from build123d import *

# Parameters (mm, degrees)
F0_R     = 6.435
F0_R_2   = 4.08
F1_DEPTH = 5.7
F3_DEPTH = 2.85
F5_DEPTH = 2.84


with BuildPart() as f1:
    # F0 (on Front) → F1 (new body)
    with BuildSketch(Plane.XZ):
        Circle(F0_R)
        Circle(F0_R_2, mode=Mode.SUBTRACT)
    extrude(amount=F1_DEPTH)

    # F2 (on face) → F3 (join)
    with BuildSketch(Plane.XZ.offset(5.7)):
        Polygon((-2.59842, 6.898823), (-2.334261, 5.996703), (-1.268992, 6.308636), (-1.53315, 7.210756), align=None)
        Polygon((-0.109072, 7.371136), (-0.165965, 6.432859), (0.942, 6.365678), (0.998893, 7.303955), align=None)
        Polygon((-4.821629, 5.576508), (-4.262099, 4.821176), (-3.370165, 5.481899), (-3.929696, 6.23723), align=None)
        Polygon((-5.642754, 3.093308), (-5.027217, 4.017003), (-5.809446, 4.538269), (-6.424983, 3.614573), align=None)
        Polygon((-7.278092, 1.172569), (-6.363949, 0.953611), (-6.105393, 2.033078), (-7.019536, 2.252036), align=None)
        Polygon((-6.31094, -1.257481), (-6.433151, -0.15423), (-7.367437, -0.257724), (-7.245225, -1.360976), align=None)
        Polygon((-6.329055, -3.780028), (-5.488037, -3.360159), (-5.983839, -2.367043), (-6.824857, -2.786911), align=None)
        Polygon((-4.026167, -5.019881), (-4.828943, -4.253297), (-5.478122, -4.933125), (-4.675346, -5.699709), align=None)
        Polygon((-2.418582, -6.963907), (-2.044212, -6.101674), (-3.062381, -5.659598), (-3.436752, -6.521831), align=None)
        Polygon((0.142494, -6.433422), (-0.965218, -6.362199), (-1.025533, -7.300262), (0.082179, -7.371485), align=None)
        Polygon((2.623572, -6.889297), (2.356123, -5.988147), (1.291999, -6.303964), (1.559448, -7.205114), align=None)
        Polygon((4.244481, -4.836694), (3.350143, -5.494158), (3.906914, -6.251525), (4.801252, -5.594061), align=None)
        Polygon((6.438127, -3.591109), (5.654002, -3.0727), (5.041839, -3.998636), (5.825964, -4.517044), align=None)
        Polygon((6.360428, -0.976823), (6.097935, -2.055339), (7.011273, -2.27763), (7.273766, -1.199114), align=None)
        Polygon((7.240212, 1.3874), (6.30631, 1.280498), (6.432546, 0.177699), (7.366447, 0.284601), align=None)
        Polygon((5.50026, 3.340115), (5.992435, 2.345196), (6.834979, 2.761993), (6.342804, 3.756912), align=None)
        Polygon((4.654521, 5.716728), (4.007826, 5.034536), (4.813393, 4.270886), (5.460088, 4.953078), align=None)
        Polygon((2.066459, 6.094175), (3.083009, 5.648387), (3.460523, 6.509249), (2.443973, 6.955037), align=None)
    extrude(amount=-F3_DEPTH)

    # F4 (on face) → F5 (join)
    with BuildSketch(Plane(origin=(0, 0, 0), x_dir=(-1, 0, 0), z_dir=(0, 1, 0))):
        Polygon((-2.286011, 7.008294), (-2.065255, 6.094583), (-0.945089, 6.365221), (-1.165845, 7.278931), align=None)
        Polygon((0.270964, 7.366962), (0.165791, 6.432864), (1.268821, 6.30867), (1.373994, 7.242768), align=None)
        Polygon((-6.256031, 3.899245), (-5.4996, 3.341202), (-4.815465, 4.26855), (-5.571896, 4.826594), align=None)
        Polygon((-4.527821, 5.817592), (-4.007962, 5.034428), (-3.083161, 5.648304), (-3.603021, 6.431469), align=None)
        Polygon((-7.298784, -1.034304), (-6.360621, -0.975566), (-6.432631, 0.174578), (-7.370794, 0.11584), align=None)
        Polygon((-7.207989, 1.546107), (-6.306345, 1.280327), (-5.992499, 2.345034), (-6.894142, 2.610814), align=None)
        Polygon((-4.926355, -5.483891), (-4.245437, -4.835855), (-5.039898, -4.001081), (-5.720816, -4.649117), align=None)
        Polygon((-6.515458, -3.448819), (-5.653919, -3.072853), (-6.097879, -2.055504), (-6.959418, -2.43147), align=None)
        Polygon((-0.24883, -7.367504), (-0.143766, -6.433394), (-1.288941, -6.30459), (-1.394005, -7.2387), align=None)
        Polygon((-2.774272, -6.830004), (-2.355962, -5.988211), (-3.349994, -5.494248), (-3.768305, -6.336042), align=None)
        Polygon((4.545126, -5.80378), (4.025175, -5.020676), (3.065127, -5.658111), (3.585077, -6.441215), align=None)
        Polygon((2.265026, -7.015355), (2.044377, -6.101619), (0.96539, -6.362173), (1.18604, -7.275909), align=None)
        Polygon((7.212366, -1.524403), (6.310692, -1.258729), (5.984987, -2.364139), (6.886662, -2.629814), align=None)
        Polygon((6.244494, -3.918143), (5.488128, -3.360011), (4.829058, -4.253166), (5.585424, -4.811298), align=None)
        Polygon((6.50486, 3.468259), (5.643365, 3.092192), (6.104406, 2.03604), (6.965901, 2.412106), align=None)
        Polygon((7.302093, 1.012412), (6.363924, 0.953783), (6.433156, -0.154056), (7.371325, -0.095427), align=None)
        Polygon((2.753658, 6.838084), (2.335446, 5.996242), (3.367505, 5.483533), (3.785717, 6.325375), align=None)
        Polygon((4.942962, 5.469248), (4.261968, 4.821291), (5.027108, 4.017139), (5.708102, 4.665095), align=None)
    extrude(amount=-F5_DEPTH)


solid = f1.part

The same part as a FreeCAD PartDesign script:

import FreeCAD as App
import Part
import Sketcher

V = App.Vector

doc = App.newDocument("Part")
params = doc.addObject("Spreadsheet::Sheet", "Params")
for row, (alias, value) in enumerate([
    ("sketch1_diameter", "12.87 mm"),
    ("sketch1_diameter2", "8.16 mm"),
    ("pad1_length", "5.7 mm"),
    ("sketch2_length", "0.94 mm"),
    ("sketch2_length2", "1.11 mm"),
    ("pad2_length", "2.85 mm"),
    ("sketch3_length", "0.940001 mm"),
    ("sketch3_length2", "0.94 mm"),
    ("sketch3_length3", "0.94 mm"),
    ("sketch3_length4", "1.11 mm"),
    ("sketch3_length5", "0.94 mm"),
    ("pad3_length", "2.84 mm"),
], start=1):
    params.set(f"A{row}", alias)
    params.set(f"B{row}", "=" + value)
    params.setAlias(f"B{row}", alias)

body = doc.addObject("PartDesign::Body", "Body")

sketch1 = body.newObject("Sketcher::SketchObject", "Sketch")
sketch1.AttachmentSupport = (doc.getObject("XZ_Plane"), [""])
sketch1.MapMode = "FlatFace"
sketch1.addGeometry([
    Part.Circle(V(0, 0, 0), V(0, 0, 1), 6.4),
    Part.Circle(V(0, 0, 0), V(0, 0, 1), 4.1),
], False)
sketch1.addConstraint([
    Sketcher.Constraint("Coincident", 0, 3, -1, 1),
    Sketcher.Constraint("Coincident", 1, 3, -1, 1),
    Sketcher.Constraint("Diameter", 0, 12.87),
    Sketcher.Constraint("Diameter", 1, 8.16),
])
sketch1.setExpression("Constraints[2]", "Params.sketch1_diameter")
sketch1.setExpression("Constraints[3]", "Params.sketch1_diameter2")
pad1 = body.newObject("PartDesign::Pad", "Pad")
pad1.Profile = sketch1
pad1.setExpression("Length", "Params.pad1_length")

sketch2 = body.newObject("Sketcher::SketchObject", "Sketch001")
sketch2.AttachmentSupport = (doc.getObject("XZ_Plane"), [""])
sketch2.MapMode = "FlatFace"
sketch2.AttachmentOffset = App.Placement(V(0, 0, 5.7), App.Rotation())
sketch2.addGeometry([
    Part.LineSegment(V(-2.6, 6.9, 0), V(-2.3, 6, 0)),
    Part.LineSegment(V(-2.3, 6, 0), V(-1.3, 6.3, 0)),
    Part.LineSegment(V(-1.3, 6.3, 0), V(-1.5, 7.2, 0)),
    Part.LineSegment(V(-1.5, 7.2, 0), V(-2.6, 6.9, 0)),
    Part.LineSegment(V(-0.1, 7.4, 0), V(-0.2, 6.4, 0)),
    Part.LineSegment(V(-0.2, 6.4, 0), V(0.9, 6.4, 0)),
    Part.LineSegment(V(0.9, 6.4, 0), V(1, 7.3, 0)),
    Part.LineSegment(V(1, 7.3, 0), V(-0.1, 7.4, 0)),
    Part.LineSegment(V(-4.8, 5.6, 0), V(-4.3, 4.8, 0)),
    Part.LineSegment(V(-4.3, 4.8, 0), V(-3.4, 5.5, 0)),
    Part.LineSegment(V(-3.4, 5.5, 0), V(-3.9, 6.2, 0)),
    Part.LineSegment(V(-3.9, 6.2, 0), V(-4.8, 5.6, 0)),
    Part.LineSegment(V(-5.6, 3.1, 0), V(-5, 4, 0)),
    Part.LineSegment(V(-5, 4, 0), V(-5.8, 4.5, 0)),
    Part.LineSegment(V(-5.8, 4.5, 0), V(-6.4, 3.6, 0)),
    Part.LineSegment(V(-6.4, 3.6, 0), V(-5.6, 3.1, 0)),
    Part.LineSegment(V(-7.3, 1.2, 0), V(-6.4, 1, 0)),
    Part.LineSegment(V(-6.4, 1, 0), V(-6.1, 2, 0)),
    Part.LineSegment(V(-6.1, 2, 0), V(-7, 2.3, 0)),
    Part.LineSegment(V(-7, 2.3, 0), V(-7.3, 1.2, 0)),
    Part.LineSegment(V(-6.3, -1.3, 0), V(-6.4, -0.2, 0)),
    Part.LineSegment(V(-6.4, -0.2, 0), V(-7.4, -0.3, 0)),
    Part.LineSegment(V(-7.4, -0.3, 0), V(-7.2, -1.4, 0)),
    Part.LineSegment(V(-7.2, -1.4, 0), V(-6.3, -1.3, 0)),
    Part.LineSegment(V(-6.3, -3.8, 0), V(-5.5, -3.4, 0)),
    Part.LineSegment(V(-5.5, -3.4, 0), V(-6, -2.4, 0)),
    Part.LineSegment(V(-6, -2.4, 0), V(-6.8, -2.8, 0)),
    Part.LineSegment(V(-6.8, -2.8, 0), V(-6.3, -3.8, 0)),
    Part.LineSegment(V(-4, -5, 0), V(-4.8, -4.3, 0)),
    Part.LineSegment(V(-4.8, -4.3, 0), V(-5.5, -4.9, 0)),
    Part.LineSegment(V(-5.5, -4.9, 0), V(-4.7, -5.7, 0)),
    Part.LineSegment(V(-4.7, -5.7, 0), V(-4, -5, 0)),
    Part.LineSegment(V(-2.4, -7, 0), V(-2, -6.1, 0)),
    Part.LineSegment(V(-2, -6.1, 0), V(-3.1, -5.7, 0)),
    Part.LineSegment(V(-3.1, -5.7, 0), V(-3.4, -6.5, 0)),
    Part.LineSegment(V(-3.4, -6.5, 0), V(-2.4, -7, 0)),
    Part.LineSegment(V(0.1, -6.4, 0), V(-1, -6.4, 0)),
    Part.LineSegment(V(-1, -6.4, 0), V(-1, -7.3, 0)),
    Part.LineSegment(V(-1, -7.3, 0), V(0.1, -7.4, 0)),
    Part.LineSegment(V(0.1, -7.4, 0), V(0.1, -6.4, 0)),
    Part.LineSegment(V(2.6, -6.9, 0), V(2.4, -6, 0)),
    Part.LineSegment(V(2.4, -6, 0), V(1.3, -6.3, 0)),
    Part.LineSegment(V(1.3, -6.3, 0), V(1.6, -7.2, 0)),
    Part.LineSegment(V(1.6, -7.2, 0), V(2.6, -6.9, 0)),
    Part.LineSegment(V(4.2, -4.8, 0), V(3.4, -5.5, 0)),
    Part.LineSegment(V(3.4, -5.5, 0), V(3.9, -6.3, 0)),
    Part.LineSegment(V(3.9, -6.3, 0), V(4.8, -5.6, 0)),
    Part.LineSegment(V(4.8, -5.6, 0), V(4.2, -4.8, 0)),
    Part.LineSegment(V(6.4, -3.6, 0), V(5.7, -3.1, 0)),
    Part.LineSegment(V(5.7, -3.1, 0), V(5, -4, 0)),
    Part.LineSegment(V(5, -4, 0), V(5.8, -4.5, 0)),
    Part.LineSegment(V(5.8, -4.5, 0), V(6.4, -3.6, 0)),
    Part.LineSegment(V(6.4, -1, 0), V(6.1, -2.1, 0)),
    Part.LineSegment(V(6.1, -2.1, 0), V(7, -2.3, 0)),
    Part.LineSegment(V(7, -2.3, 0), V(7.3, -1.2, 0)),
    Part.LineSegment(V(7.3, -1.2, 0), V(6.4, -1, 0)),
    Part.LineSegment(V(7.2, 1.4, 0), V(6.3, 1.3, 0)),
    Part.LineSegment(V(6.3, 1.3, 0), V(6.4, 0.2, 0)),
    Part.LineSegment(V(6.4, 0.2, 0), V(7.4, 0.3, 0)),
    Part.LineSegment(V(7.4, 0.3, 0), V(7.2, 1.4, 0)),
    Part.LineSegment(V(5.5, 3.3, 0), V(6, 2.3, 0)),
    Part.LineSegment(V(6, 2.3, 0), V(6.8, 2.8, 0)),
    Part.LineSegment(V(6.8, 2.8, 0), V(6.3, 3.8, 0)),
    Part.LineSegment(V(6.3, 3.8, 0), V(5.5, 3.3, 0)),
    Part.LineSegment(V(4.7, 5.7, 0), V(4, 5, 0)),
    Part.LineSegment(V(4, 5, 0), V(4.8, 4.3, 0)),
    Part.LineSegment(V(4.8, 4.3, 0), V(5.5, 5, 0)),
    Part.LineSegment(V(5.5, 5, 0), V(4.7, 5.7, 0)),
    Part.LineSegment(V(2.1, 6.1, 0), V(3.1, 5.6, 0)),
    Part.LineSegment(V(3.1, 5.6, 0), V(3.5, 6.5, 0)),
    Part.LineSegment(V(3.5, 6.5, 0), V(2.4, 7, 0)),
    Part.LineSegment(V(2.4, 7, 0), V(2.1, 6.1, 0)),
], False)
sketch2.addConstraint([
    Sketcher.Constraint("Coincident", 0, 2, 1, 1),
    Sketcher.Constraint("Coincident", 1, 2, 2, 1),
    Sketcher.Constraint("Coincident", 2, 2, 3, 1),
    Sketcher.Constraint("Coincident", 3, 2, 0, 1),
    Sketcher.Constraint("Coincident", 4, 2, 5, 1),
    Sketcher.Constraint("Coincident", 5, 2, 6, 1),
    Sketcher.Constraint("Coincident", 6, 2, 7, 1),
    Sketcher.Constraint("Coincident", 7, 2, 4, 1),
    Sketcher.Constraint("Coincident", 8, 2, 9, 1),
    Sketcher.Constraint("Coincident", 9, 2, 10, 1),
    Sketcher.Constraint("Coincident", 10, 2, 11, 1),
    Sketcher.Constraint("Coincident", 11, 2, 8, 1),
    Sketcher.Constraint("Coincident", 12, 2, 13, 1),
    Sketcher.Constraint("Coincident", 13, 2, 14, 1),
    Sketcher.Constraint("Coincident", 14, 2, 15, 1),
    Sketcher.Constraint("Coincident", 15, 2, 12, 1),
    Sketcher.Constraint("Coincident", 16, 2, 17, 1),
    Sketcher.Constraint("Coincident", 17, 2, 18, 1),
    Sketcher.Constraint("Coincident", 18, 2, 19, 1),
    Sketcher.Constraint("Coincident", 19, 2, 16, 1),
    Sketcher.Constraint("Coincident", 20, 2, 21, 1),
    Sketcher.Constraint("Coincident", 21, 2, 22, 1),
    Sketcher.Constraint("Coincident", 22, 2, 23, 1),
    Sketcher.Constraint("Coincident", 23, 2, 20, 1),
    Sketcher.Constraint("Coincident", 24, 2, 25, 1),
    Sketcher.Constraint("Coincident", 25, 2, 26, 1),
    Sketcher.Constraint("Coincident", 26, 2, 27, 1),
    Sketcher.Constraint("Coincident", 27, 2, 24, 1),
    Sketcher.Constraint("Coincident", 28, 2, 29, 1),
    Sketcher.Constraint("Coincident", 29, 2, 30, 1),
    Sketcher.Constraint("Coincident", 30, 2, 31, 1),
    Sketcher.Constraint("Coincident", 31, 2, 28, 1),
    Sketcher.Constraint("Coincident", 32, 2, 33, 1),
    Sketcher.Constraint("Coincident", 33, 2, 34, 1),
    Sketcher.Constraint("Coincident", 34, 2, 35, 1),
    Sketcher.Constraint("Coincident", 35, 2, 32, 1),
    Sketcher.Constraint("Coincident", 36, 2, 37, 1),
    Sketcher.Constraint("Coincident", 37, 2, 38, 1),
    Sketcher.Constraint("Coincident", 38, 2, 39, 1),
    Sketcher.Constraint("Coincident", 39, 2, 36, 1),
    Sketcher.Constraint("Coincident", 40, 2, 41, 1),
    Sketcher.Constraint("Coincident", 41, 2, 42, 1),
    Sketcher.Constraint("Coincident", 42, 2, 43, 1),
    Sketcher.Constraint("Coincident", 43, 2, 40, 1),
    Sketcher.Constraint("Coincident", 44, 2, 45, 1),
    Sketcher.Constraint("Coincident", 45, 2, 46, 1),
    Sketcher.Constraint("Coincident", 46, 2, 47, 1),
    Sketcher.Constraint("Coincident", 47, 2, 44, 1),
    Sketcher.Constraint("Coincident", 48, 2, 49, 1),
    Sketcher.Constraint("Coincident", 49, 2, 50, 1),
    Sketcher.Constraint("Coincident", 50, 2, 51, 1),
    Sketcher.Constraint("Coincident", 51, 2, 48, 1),
    Sketcher.Constraint("Coincident", 52, 2, 53, 1),
    Sketcher.Constraint("Coincident", 53, 2, 54, 1),
    Sketcher.Constraint("Coincident", 54, 2, 55, 1),
    Sketcher.Constraint("Coincident", 55, 2, 52, 1),
    Sketcher.Constraint("Coincident", 56, 2, 57, 1),
    Sketcher.Constraint("Coincident", 57, 2, 58, 1),
    Sketcher.Constraint("Coincident", 58, 2, 59, 1),
    Sketcher.Constraint("Coincident", 59, 2, 56, 1),
    Sketcher.Constraint("Coincident", 60, 2, 61, 1),
    Sketcher.Constraint("Coincident", 61, 2, 62, 1),
    Sketcher.Constraint("Coincident", 62, 2, 63, 1),
    Sketcher.Constraint("Coincident", 63, 2, 60, 1),
    Sketcher.Constraint("Coincident", 64, 2, 65, 1),
    Sketcher.Constraint("Coincident", 65, 2, 66, 1),
    Sketcher.Constraint("Coincident", 66, 2, 67, 1),
    Sketcher.Constraint("Coincident", 67, 2, 64, 1),
    Sketcher.Constraint("Coincident", 68, 2, 69, 1),
    Sketcher.Constraint("Coincident", 69, 2, 70, 1),
    Sketcher.Constraint("Coincident", 70, 2, 71, 1),
    Sketcher.Constraint("Coincident", 71, 2, 68, 1),
    Sketcher.Constraint("Perpendicular", 0, 1),
    Sketcher.Constraint("Perpendicular", 1, 2),
    Sketcher.Constraint("Perpendicular", 2, 3),
    Sketcher.Constraint("Perpendicular", 4, 5),
    Sketcher.Constraint("Perpendicular", 5, 6),
    Sketcher.Constraint("Perpendicular", 6, 7),
    Sketcher.Constraint("Perpendicular", 8, 9),
    Sketcher.Constraint("Perpendicular", 9, 10),
    Sketcher.Constraint("Perpendicular", 10, 11),
    Sketcher.Constraint("Perpendicular", 12, 13),
    Sketcher.Constraint("Perpendicular", 13, 14),
    Sketcher.Constraint("Perpendicular", 14, 15),
    Sketcher.Constraint("Perpendicular", 16, 17),
    Sketcher.Constraint("Perpendicular", 17, 18),
    Sketcher.Constraint("Perpendicular", 18, 19),
    Sketcher.Constraint("Perpendicular", 20, 21),
    Sketcher.Constraint("Perpendicular", 21, 22),
    Sketcher.Constraint("Perpendicular", 22, 23),
    Sketcher.Constraint("Perpendicular", 24, 25),
    Sketcher.Constraint("Perpendicular", 25, 26),
    Sketcher.Constraint("Perpendicular", 26, 27),
    Sketcher.Constraint("Perpendicular", 28, 29),
    Sketcher.Constraint("Perpendicular", 29, 30),
    Sketcher.Constraint("Perpendicular", 30, 31),
    Sketcher.Constraint("Perpendicular", 32, 33),
    Sketcher.Constraint("Perpendicular", 33, 34),
    Sketcher.Constraint("Perpendicular", 34, 35),
    Sketcher.Constraint("Perpendicular", 36, 37),
    Sketcher.Constraint("Perpendicular", 37, 38),
    Sketcher.Constraint("Perpendicular", 38, 39),
    Sketcher.Constraint("Perpendicular", 40, 41),
    Sketcher.Constraint("Perpendicular", 41, 42),
    Sketcher.Constraint("Perpendicular", 42, 43),
    Sketcher.Constraint("Perpendicular", 44, 45),
    Sketcher.Constraint("Perpendicular", 45, 46),
    Sketcher.Constraint("Perpendicular", 46, 47),
    Sketcher.Constraint("Perpendicular", 48, 49),
    Sketcher.Constraint("Perpendicular", 49, 50),
    Sketcher.Constraint("Perpendicular", 50, 51),
    Sketcher.Constraint("Perpendicular", 52, 53),
    Sketcher.Constraint("Perpendicular", 53, 54),
    Sketcher.Constraint("Perpendicular", 54, 55),
    Sketcher.Constraint("Perpendicular", 56, 57),
    Sketcher.Constraint("Perpendicular", 57, 58),
    Sketcher.Constraint("Perpendicular", 58, 59),
    Sketcher.Constraint("Perpendicular", 60, 61),
    Sketcher.Constraint("Perpendicular", 61, 62),
    Sketcher.Constraint("Perpendicular", 62, 63),
    Sketcher.Constraint("Perpendicular", 64, 65),
    Sketcher.Constraint("Perpendicular", 65, 66),
    Sketcher.Constraint("Perpendicular", 66, 67),
    Sketcher.Constraint("Perpendicular", 68, 69),
    Sketcher.Constraint("Perpendicular", 69, 70),
    Sketcher.Constraint("Perpendicular", 70, 71),
    Sketcher.Constraint("Equal", 2, 4),
    Sketcher.Constraint("Equal", 3, 5),
    Sketcher.Constraint("Equal", 6, 8),
    Sketcher.Constraint("Equal", 7, 9),
    Sketcher.Constraint("Equal", 11, 12),
    Sketcher.Constraint("Equal", 10, 13),
    Sketcher.Constraint("Equal", 15, 16),
    Sketcher.Constraint("Equal", 14, 17),
    Sketcher.Constraint("Equal", 19, 20),
    Sketcher.Constraint("Equal", 18, 21),
    Sketcher.Constraint("Equal", 23, 24),
    Sketcher.Constraint("Equal", 22, 25),
    Sketcher.Constraint("Equal", 27, 28),
    Sketcher.Constraint("Equal", 26, 29),
    Sketcher.Constraint("Equal", 31, 32),
    Sketcher.Constraint("Equal", 30, 33),
    Sketcher.Constraint("Equal", 35, 36),
    Sketcher.Constraint("Equal", 34, 37),
    Sketcher.Constraint("Equal", 39, 40),
    Sketcher.Constraint("Equal", 38, 41),
    Sketcher.Constraint("Equal", 43, 44),
    Sketcher.Constraint("Equal", 42, 45),
    Sketcher.Constraint("Equal", 47, 48),
    Sketcher.Constraint("Equal", 46, 49),
    Sketcher.Constraint("Equal", 51, 52),
    Sketcher.Constraint("Equal", 50, 53),
    Sketcher.Constraint("Equal", 55, 56),
    Sketcher.Constraint("Equal", 54, 57),
    Sketcher.Constraint("Equal", 59, 60),
    Sketcher.Constraint("Equal", 58, 61),
    Sketcher.Constraint("Equal", 63, 64),
    Sketcher.Constraint("Equal", 62, 65),
    Sketcher.Constraint("Equal", 67, 68),
    Sketcher.Constraint("Equal", 66, 69),
    Sketcher.Constraint("Distance", 0, 0.94),
    Sketcher.Constraint("Distance", 1, 1.11),
    Sketcher.Constraint("DistanceX", -1, 1, 5, 2, 0.942),
    Sketcher.Constraint("DistanceX", -1, 1, 41, 2, 1.291999),
    Sketcher.Constraint("DistanceX", 8, 2, -1, 1, 4.262099),
    Sketcher.Constraint("DistanceY", -1, 1, 9, 2, 5.481899),
    Sketcher.Constraint("DistanceY", 36, 2, -1, 1, 6.362199),
    Sketcher.Constraint("DistanceY", 48, 2, -1, 1, 3.0727),
    Sketcher.Constraint("DistanceY", -1, 1, 57, 2, 0.177699),
    Sketcher.Constraint("DistanceY", -1, 1, 58, 2, 0.284601),
    Sketcher.Constraint("DistanceX", 0, 2, -1, 1, 2.334261),
    Sketcher.Constraint("DistanceX", 1, 2, -1, 1, 1.268992),
    Sketcher.Constraint("DistanceY", -1, 1, 4, 2, 6.432859),
    Sketcher.Constraint("DistanceY", -1, 1, 10, 2, 6.23723),
    Sketcher.Constraint("DistanceY", -1, 1, 13, 2, 4.538269),
    Sketcher.Constraint("DistanceY", -1, 1, 15, 2, 3.093308),
    Sketcher.Constraint("DistanceX", 16, 2, -1, 1, 6.363949),
    Sketcher.Constraint("DistanceY", -1, 1, 16, 2, 0.953611),
    Sketcher.Constraint("DistanceY", -1, 1, 17, 2, 2.033078),
    Sketcher.Constraint("DistanceX", 20, 2, -1, 1, 6.433151),
    Sketcher.Constraint("DistanceY", 20, 2, -1, 1, 0.15423),
    Sketcher.Constraint("DistanceX", 23, 2, -1, 1, 6.31094),
    Sketcher.Constraint("DistanceY", 24, 2, -1, 1, 3.360159),
    Sketcher.Constraint("DistanceX", 25, 2, -1, 1, 5.983839),
    Sketcher.Constraint("DistanceY", 26, 2, -1, 1, 2.786911),
    Sketcher.Constraint("DistanceY", 30, 2, -1, 1, 5.699709),
    Sketcher.Constraint("DistanceY", 31, 2, -1, 1, 5.019881),
    Sketcher.Constraint("DistanceX", 32, 2, -1, 1, 2.044212),
    Sketcher.Constraint("DistanceX", 33, 2, -1, 1, 3.062381),
    Sketcher.Constraint("DistanceY", 34, 2, -1, 1, 6.521831),
    Sketcher.Constraint("DistanceX", 36, 2, -1, 1, 0.965218),
    Sketcher.Constraint("DistanceX", -1, 1, 38, 2, 0.082179),
    Sketcher.Constraint("DistanceX", -1, 1, 43, 2, 2.623572),
    Sketcher.Constraint("DistanceY", 46, 2, -1, 1, 5.594061),
    Sketcher.Constraint("DistanceX", -1, 1, 47, 2, 4.244481),
    Sketcher.Constraint("DistanceX", -1, 1, 49, 2, 5.041839),
    Sketcher.Constraint("DistanceY", 51, 2, -1, 1, 3.591109),
    Sketcher.Constraint("DistanceY", 52, 2, -1, 1, 2.055339),
    Sketcher.Constraint("DistanceY", 53, 2, -1, 1, 2.27763),
    Sketcher.Constraint("DistanceX", -1, 1, 56, 2, 6.30631),
    Sketcher.Constraint("DistanceX", -1, 1, 61, 2, 6.834979),
    Sketcher.Constraint("DistanceY", -1, 1, 62, 2, 3.756912),
    Sketcher.Constraint("DistanceX", -1, 1, 63, 2, 5.50026),
    Sketcher.Constraint("DistanceX", -1, 1, 67, 2, 4.654521),
    Sketcher.Constraint("DistanceX", -1, 1, 68, 2, 3.083009),
    Sketcher.Constraint("DistanceY", -1, 1, 69, 2, 6.509249),
    Sketcher.Constraint("DistanceX", -1, 1, 71, 2, 2.066459),
    Sketcher.Constraint("DistanceY", -1, 1, 0, 2, 5.996703),
    Sketcher.Constraint("DistanceX", 4, 2, -1, 1, 0.165965),
    Sketcher.Constraint("DistanceX", 12, 2, -1, 1, 5.027217),
    Sketcher.Constraint("DistanceX", 28, 2, -1, 1, 4.828943),
    Sketcher.Constraint("DistanceY", 40, 2, -1, 1, 5.988147),
    Sketcher.Constraint("DistanceX", -1, 1, 44, 2, 3.350143),
    Sketcher.Constraint("DistanceX", -1, 1, 52, 2, 6.097935),
    Sketcher.Constraint("DistanceX", -1, 1, 64, 2, 4.007826),
    Sketcher.Constraint("DistanceY", -1, 1, 64, 2, 5.034536),
])
sketch2.setExpression("Constraints[160]", "Params.sketch2_length")
sketch2.setExpression("Constraints[161]", "Params.sketch2_length2")
pad2 = body.newObject("PartDesign::Pad", "Pad001")
pad2.Profile = sketch2
pad2.setExpression("Length", "Params.pad2_length")
pad2.Reversed = True

sketch3 = body.newObject("Sketcher::SketchObject", "Sketch002")
sketch3.AttachmentSupport = (doc.getObject("XZ_Plane"), [""])
sketch3.MapMode = "FlatFace"
sketch3.addGeometry([
    Part.LineSegment(V(2.286011, 7.008294, 0), V(2.065255, 6.094583, 0)),
    Part.LineSegment(V(2.065255, 6.094583, 0), V(0.945089, 6.365221, 0)),
    Part.LineSegment(V(0.945089, 6.365221, 0), V(1.165845, 7.278931, 0)),
    Part.LineSegment(V(1.165845, 7.278931, 0), V(2.286011, 7.008294, 0)),
    Part.LineSegment(V(-0.270964, 7.366962, 0), V(-0.165791, 6.432864, 0)),
    Part.LineSegment(V(-0.165791, 6.432864, 0), V(-1.268821, 6.30867, 0)),
    Part.LineSegment(V(-1.268821, 6.30867, 0), V(-1.373994, 7.242768, 0)),
    Part.LineSegment(V(-1.373994, 7.242768, 0), V(-0.270964, 7.366962, 0)),
    Part.LineSegment(V(6.256031, 3.899245, 0), V(5.4996, 3.341202, 0)),
    Part.LineSegment(V(5.4996, 3.341202, 0), V(4.815465, 4.26855, 0)),
    Part.LineSegment(V(4.815465, 4.26855, 0), V(5.571896, 4.826594, 0)),
    Part.LineSegment(V(5.571896, 4.826594, 0), V(6.256031, 3.899245, 0)),
    Part.LineSegment(V(4.527821, 5.817592, 0), V(4.007962, 5.034428, 0)),
    Part.LineSegment(V(4.007962, 5.034428, 0), V(3.083161, 5.648304, 0)),
    Part.LineSegment(V(3.083161, 5.648304, 0), V(3.603021, 6.431469, 0)),
    Part.LineSegment(V(3.603021, 6.431469, 0), V(4.527821, 5.817592, 0)),
    Part.LineSegment(V(7.298784, -1.034304, 0), V(6.360621, -0.975566, 0)),
    Part.LineSegment(V(6.360621, -0.975566, 0), V(6.432631, 0.174578, 0)),
    Part.LineSegment(V(6.432631, 0.174578, 0), V(7.370794, 0.11584, 0)),
    Part.LineSegment(V(7.370794, 0.11584, 0), V(7.298784, -1.034304, 0)),
    Part.LineSegment(V(7.207989, 1.546107, 0), V(6.306345, 1.280327, 0)),
    Part.LineSegment(V(6.306345, 1.280327, 0), V(5.992499, 2.345034, 0)),
    Part.LineSegment(V(5.992499, 2.345034, 0), V(6.894142, 2.610814, 0)),
    Part.LineSegment(V(6.894142, 2.610814, 0), V(7.207989, 1.546107, 0)),
    Part.LineSegment(V(4.926355, -5.483891, 0), V(4.245437, -4.835855, 0)),
    Part.LineSegment(V(4.245437, -4.835855, 0), V(5.039898, -4.001081, 0)),
    Part.LineSegment(V(5.039898, -4.001081, 0), V(5.720816, -4.649117, 0)),
    Part.LineSegment(V(5.720816, -4.649117, 0), V(4.926355, -5.483891, 0)),
    Part.LineSegment(V(6.515458, -3.448819, 0), V(5.653919, -3.072853, 0)),
    Part.LineSegment(V(5.653919, -3.072853, 0), V(6.097879, -2.055504, 0)),
    Part.LineSegment(V(6.097879, -2.055504, 0), V(6.959418, -2.43147, 0)),
    Part.LineSegment(V(6.959418, -2.43147, 0), V(6.515458, -3.448819, 0)),
    Part.LineSegment(V(0.24883, -7.367504, 0), V(0.143766, -6.433394, 0)),
    Part.LineSegment(V(0.143766, -6.433394, 0), V(1.288941, -6.30459, 0)),
    Part.LineSegment(V(1.288941, -6.30459, 0), V(1.394005, -7.2387, 0)),
    Part.LineSegment(V(1.394005, -7.2387, 0), V(0.24883, -7.367504, 0)),
    Part.LineSegment(V(2.774272, -6.830004, 0), V(2.355962, -5.988211, 0)),
    Part.LineSegment(V(2.355962, -5.988211, 0), V(3.349994, -5.494248, 0)),
    Part.LineSegment(V(3.349994, -5.494248, 0), V(3.768305, -6.336042, 0)),
    Part.LineSegment(V(3.768305, -6.336042, 0), V(2.774272, -6.830004, 0)),
    Part.LineSegment(V(-4.545126, -5.80378, 0), V(-4.025175, -5.020676, 0)),
    Part.LineSegment(V(-4.025175, -5.020676, 0), V(-3.065127, -5.658111, 0)),
    Part.LineSegment(V(-3.065127, -5.658111, 0), V(-3.585077, -6.441215, 0)),
    Part.LineSegment(V(-3.585077, -6.441215, 0), V(-4.545126, -5.80378, 0)),
    Part.LineSegment(V(-2.265026, -7.015355, 0), V(-2.044377, -6.101619, 0)),
    Part.LineSegment(V(-2.044377, -6.101619, 0), V(-0.96539, -6.362173, 0)),
    Part.LineSegment(V(-0.96539, -6.362173, 0), V(-1.18604, -7.275909, 0)),
    Part.LineSegment(V(-1.18604, -7.275909, 0), V(-2.265026, -7.015355, 0)),
    Part.LineSegment(V(-7.212366, -1.524403, 0), V(-6.310692, -1.258729, 0)),
    Part.LineSegment(V(-6.310692, -1.258729, 0), V(-5.984987, -2.364139, 0)),
    Part.LineSegment(V(-5.984987, -2.364139, 0), V(-6.886662, -2.629814, 0)),
    Part.LineSegment(V(-6.886662, -2.629814, 0), V(-7.212366, -1.524403, 0)),
    Part.LineSegment(V(-6.244494, -3.918143, 0), V(-5.488128, -3.360011, 0)),
    Part.LineSegment(V(-5.488128, -3.360011, 0), V(-4.829058, -4.253166, 0)),
    Part.LineSegment(V(-4.829058, -4.253166, 0), V(-5.585424, -4.811298, 0)),
    Part.LineSegment(V(-5.585424, -4.811298, 0), V(-6.244494, -3.918143, 0)),
    Part.LineSegment(V(-6.50486, 3.468259, 0), V(-5.643365, 3.092192, 0)),
    Part.LineSegment(V(-5.643365, 3.092192, 0), V(-6.104406, 2.03604, 0)),
    Part.LineSegment(V(-6.104406, 2.03604, 0), V(-6.965901, 2.412106, 0)),
    Part.LineSegment(V(-6.965901, 2.412106, 0), V(-6.50486, 3.468259, 0)),
    Part.LineSegment(V(-7.302093, 1.012412, 0), V(-6.363924, 0.953783, 0)),
    Part.LineSegment(V(-6.363924, 0.953783, 0), V(-6.433156, -0.154056, 0)),
    Part.LineSegment(V(-6.433156, -0.154056, 0), V(-7.371325, -0.095427, 0)),
    Part.LineSegment(V(-7.371325, -0.095427, 0), V(-7.302093, 1.012412, 0)),
    Part.LineSegment(V(-2.753658, 6.838084, 0), V(-2.335446, 5.996242, 0)),
    Part.LineSegment(V(-2.335446, 5.996242, 0), V(-3.367505, 5.483533, 0)),
    Part.LineSegment(V(-3.367505, 5.483533, 0), V(-3.785717, 6.325375, 0)),
    Part.LineSegment(V(-3.785717, 6.325375, 0), V(-2.753658, 6.838084, 0)),
    Part.LineSegment(V(-4.942962, 5.469248, 0), V(-4.261968, 4.821291, 0)),
    Part.LineSegment(V(-4.261968, 4.821291, 0), V(-5.027108, 4.017139, 0)),
    Part.LineSegment(V(-5.027108, 4.017139, 0), V(-5.708102, 4.665095, 0)),
    Part.LineSegment(V(-5.708102, 4.665095, 0), V(-4.942962, 5.469248, 0)),
], False)
sketch3.addConstraint([
    Sketcher.Constraint("Coincident", 0, 2, 1, 1),
    Sketcher.Constraint("Coincident", 1, 2, 2, 1),
    Sketcher.Constraint("Coincident", 2, 2, 3, 1),
    Sketcher.Constraint("Coincident", 3, 2, 0, 1),
    Sketcher.Constraint("Coincident", 4, 2, 5, 1),
    Sketcher.Constraint("Coincident", 5, 2, 6, 1),
    Sketcher.Constraint("Coincident", 6, 2, 7, 1),
    Sketcher.Constraint("Coincident", 7, 2, 4, 1),
    Sketcher.Constraint("Coincident", 8, 2, 9, 1),
    Sketcher.Constraint("Coincident", 9, 2, 10, 1),
    Sketcher.Constraint("Coincident", 10, 2, 11, 1),
    Sketcher.Constraint("Coincident", 11, 2, 8, 1),
    Sketcher.Constraint("Coincident", 12, 2, 13, 1),
    Sketcher.Constraint("Coincident", 13, 2, 14, 1),
    Sketcher.Constraint("Coincident", 14, 2, 15, 1),
    Sketcher.Constraint("Coincident", 15, 2, 12, 1),
    Sketcher.Constraint("Coincident", 16, 2, 17, 1),
    Sketcher.Constraint("Coincident", 17, 2, 18, 1),
    Sketcher.Constraint("Coincident", 18, 2, 19, 1),
    Sketcher.Constraint("Coincident", 19, 2, 16, 1),
    Sketcher.Constraint("Coincident", 20, 2, 21, 1),
    Sketcher.Constraint("Coincident", 21, 2, 22, 1),
    Sketcher.Constraint("Coincident", 22, 2, 23, 1),
    Sketcher.Constraint("Coincident", 23, 2, 20, 1),
    Sketcher.Constraint("Coincident", 24, 2, 25, 1),
    Sketcher.Constraint("Coincident", 25, 2, 26, 1),
    Sketcher.Constraint("Coincident", 26, 2, 27, 1),
    Sketcher.Constraint("Coincident", 27, 2, 24, 1),
    Sketcher.Constraint("Coincident", 28, 2, 29, 1),
    Sketcher.Constraint("Coincident", 29, 2, 30, 1),
    Sketcher.Constraint("Coincident", 30, 2, 31, 1),
    Sketcher.Constraint("Coincident", 31, 2, 28, 1),
    Sketcher.Constraint("Coincident", 32, 2, 33, 1),
    Sketcher.Constraint("Coincident", 33, 2, 34, 1),
    Sketcher.Constraint("Coincident", 34, 2, 35, 1),
    Sketcher.Constraint("Coincident", 35, 2, 32, 1),
    Sketcher.Constraint("Coincident", 36, 2, 37, 1),
    Sketcher.Constraint("Coincident", 37, 2, 38, 1),
    Sketcher.Constraint("Coincident", 38, 2, 39, 1),
    Sketcher.Constraint("Coincident", 39, 2, 36, 1),
    Sketcher.Constraint("Coincident", 40, 2, 41, 1),
    Sketcher.Constraint("Coincident", 41, 2, 42, 1),
    Sketcher.Constraint("Coincident", 42, 2, 43, 1),
    Sketcher.Constraint("Coincident", 43, 2, 40, 1),
    Sketcher.Constraint("Coincident", 44, 2, 45, 1),
    Sketcher.Constraint("Coincident", 45, 2, 46, 1),
    Sketcher.Constraint("Coincident", 46, 2, 47, 1),
    Sketcher.Constraint("Coincident", 47, 2, 44, 1),
    Sketcher.Constraint("Coincident", 48, 2, 49, 1),
    Sketcher.Constraint("Coincident", 49, 2, 50, 1),
    Sketcher.Constraint("Coincident", 50, 2, 51, 1),
    Sketcher.Constraint("Coincident", 51, 2, 48, 1),
    Sketcher.Constraint("Coincident", 52, 2, 53, 1),
    Sketcher.Constraint("Coincident", 53, 2, 54, 1),
    Sketcher.Constraint("Coincident", 54, 2, 55, 1),
    Sketcher.Constraint("Coincident", 55, 2, 52, 1),
    Sketcher.Constraint("Coincident", 56, 2, 57, 1),
    Sketcher.Constraint("Coincident", 57, 2, 58, 1),
    Sketcher.Constraint("Coincident", 58, 2, 59, 1),
    Sketcher.Constraint("Coincident", 59, 2, 56, 1),
    Sketcher.Constraint("Coincident", 60, 2, 61, 1),
    Sketcher.Constraint("Coincident", 61, 2, 62, 1),
    Sketcher.Constraint("Coincident", 62, 2, 63, 1),
    Sketcher.Constraint("Coincident", 63, 2, 60, 1),
    Sketcher.Constraint("Coincident", 64, 2, 65, 1),
    Sketcher.Constraint("Coincident", 65, 2, 66, 1),
    Sketcher.Constraint("Coincident", 66, 2, 67, 1),
    Sketcher.Constraint("Coincident", 67, 2, 64, 1),
    Sketcher.Constraint("Coincident", 68, 2, 69, 1),
    Sketcher.Constraint("Coincident", 69, 2, 70, 1),
    Sketcher.Constraint("Coincident", 70, 2, 71, 1),
    Sketcher.Constraint("Coincident", 71, 2, 68, 1),
    Sketcher.Constraint("Distance", 0, 0.940001),
    Sketcher.Constraint("Distance", 2, 0.94),
    Sketcher.Constraint("Distance", 4, 0.94),
    Sketcher.Constraint("Distance", 5, 1.11),
    Sketcher.Constraint("Distance", 6, 0.94),
    Sketcher.Constraint("Distance", 7, 1.11),
    Sketcher.Constraint("Distance", 8, 0.94),
    Sketcher.Constraint("Distance", 10, 0.940001),
    Sketcher.Constraint("Distance", 12, 0.94),
    Sketcher.Constraint("Distance", 13, 1.11),
    Sketcher.Constraint("Distance", 14, 0.940001),
    Sketcher.Constraint("Distance", 15, 1.11),
    Sketcher.Constraint("Distance", 16, 0.94),
    Sketcher.Constraint("Distance", 18, 0.94),
    Sketcher.Constraint("Distance", 20, 0.94),
    Sketcher.Constraint("Distance", 21, 1.11),
    Sketcher.Constraint("Distance", 22, 0.94),
    Sketcher.Constraint("Distance", 23, 1.11),
    Sketcher.Constraint("Distance", 24, 0.94),
    Sketcher.Constraint("Distance", 26, 0.94),
    Sketcher.Constraint("Distance", 28, 0.94),
    Sketcher.Constraint("Distance", 29, 1.11),
    Sketcher.Constraint("Distance", 30, 0.94),
    Sketcher.Constraint("Distance", 31, 1.11),
    Sketcher.Constraint("Distance", 32, 0.94),
    Sketcher.Constraint("Distance", 34, 0.94),
    Sketcher.Constraint("Distance", 36, 0.939999),
    Sketcher.Constraint("Distance", 37, 1.11),
    Sketcher.Constraint("Distance", 38, 0.940001),
    Sketcher.Constraint("Distance", 39, 1.11),
    Sketcher.Constraint("Distance", 40, 0.94),
    Sketcher.Constraint("Distance", 42, 0.94),
    Sketcher.Constraint("Distance", 44, 0.94),
    Sketcher.Constraint("Distance", 45, 1.110001),
    Sketcher.Constraint("Distance", 46, 0.94),
    Sketcher.Constraint("Distance", 47, 1.11),
    Sketcher.Constraint("Distance", 48, 0.939999),
    Sketcher.Constraint("Distance", 50, 0.940001),
    Sketcher.Constraint("Distance", 52, 0.94),
    Sketcher.Constraint("Distance", 53, 1.11),
    Sketcher.Constraint("Distance", 54, 0.94),
    Sketcher.Constraint("Distance", 55, 1.11),
    Sketcher.Constraint("Distance", 56, 0.94),
    Sketcher.Constraint("Distance", 58, 0.94),
    Sketcher.Constraint("Distance", 60, 0.939999),
    Sketcher.Constraint("Distance", 61, 1.11),
    Sketcher.Constraint("Distance", 62, 0.939999),
    Sketcher.Constraint("Distance", 63, 1.11),
    Sketcher.Constraint("Distance", 64, 0.94),
    Sketcher.Constraint("Distance", 66, 0.94),
    Sketcher.Constraint("Distance", 68, 0.940001),
    Sketcher.Constraint("Distance", 69, 1.11),
    Sketcher.Constraint("Distance", 70, 0.94),
    Sketcher.Constraint("Distance", 71, 1.110001),
    Sketcher.Constraint("DistanceX", -1, 1, 8, 2, 5.4996),
    Sketcher.Constraint("DistanceY", -1, 1, 8, 2, 3.341202),
    Sketcher.Constraint("DistanceX", -1, 1, 21, 2, 5.992499),
    Sketcher.Constraint("DistanceY", 34, 2, -1, 1, 7.2387),
    Sketcher.Constraint("DistanceX", 58, 2, -1, 1, 6.965901),
    Sketcher.Constraint("DistanceX", -1, 1, 1, 2, 0.945089),
    Sketcher.Constraint("DistanceY", -1, 1, 1, 2, 6.365221),
    Sketcher.Constraint("DistanceY", -1, 1, 2, 2, 7.278931),
    Sketcher.Constraint("DistanceX", -1, 1, 3, 2, 2.286011),
    Sketcher.Constraint("DistanceX", 4, 2, -1, 1, 0.165791),
    Sketcher.Constraint("DistanceX", 5, 2, -1, 1, 1.268821),
    Sketcher.Constraint("DistanceY", -1, 1, 5, 2, 6.30867),
    Sketcher.Constraint("DistanceY", -1, 1, 9, 2, 4.26855),
    Sketcher.Constraint("DistanceX", -1, 1, 11, 2, 6.256031),
    Sketcher.Constraint("DistanceX", -1, 1, 13, 2, 3.083161),
    Sketcher.Constraint("DistanceX", -1, 1, 14, 2, 3.603021),
    Sketcher.Constraint("DistanceY", -1, 1, 14, 2, 6.431469),
    Sketcher.Constraint("DistanceX", -1, 1, 15, 2, 4.527821),
    Sketcher.Constraint("DistanceX", -1, 1, 16, 2, 6.360621),
    Sketcher.Constraint("DistanceX", -1, 1, 17, 2, 6.432631),
    Sketcher.Constraint("DistanceY", -1, 1, 18, 2, 0.11584),
    Sketcher.Constraint("DistanceX", -1, 1, 23, 2, 7.207989),
    Sketcher.Constraint("DistanceY", 25, 2, -1, 1, 4.001081),
    Sketcher.Constraint("DistanceY", 27, 2, -1, 1, 5.483891),
    Sketcher.Constraint("DistanceX", -1, 1, 28, 2, 5.653919),
    Sketcher.Constraint("DistanceX", -1, 1, 29, 2, 6.097879),
    Sketcher.Constraint("DistanceX", -1, 1, 30, 2, 6.959418),
    Sketcher.Constraint("DistanceY", 30, 2, -1, 1, 2.43147),
    Sketcher.Constraint("DistanceX", -1, 1, 33, 2, 1.288941),
    Sketcher.Constraint("DistanceY", 33, 2, -1, 1, 6.30459),
    Sketcher.Constraint("DistanceX", -1, 1, 35, 2, 0.24883),
    Sketcher.Constraint("DistanceX", -1, 1, 36, 2, 2.355962),
    Sketcher.Constraint("DistanceY", 36, 2, -1, 1, 5.988211),
    Sketcher.Constraint("DistanceX", -1, 1, 39, 2, 2.774272),
    Sketcher.Constraint("DistanceY", 41, 2, -1, 1, 5.658111),
    Sketcher.Constraint("DistanceY", 43, 2, -1, 1, 5.80378),
    Sketcher.Constraint("DistanceY", 44, 2, -1, 1, 6.101619),
    Sketcher.Constraint("DistanceX", 45, 2, -1, 1, 0.96539),
    Sketcher.Constraint("DistanceX", 46, 2, -1, 1, 1.18604),
    Sketcher.Constraint("DistanceY", 46, 2, -1, 1, 7.275909),
    Sketcher.Constraint("DistanceY", 48, 2, -1, 1, 1.258729),
    Sketcher.Constraint("DistanceY", 49, 2, -1, 1, 2.364139),
    Sketcher.Constraint("DistanceY", 52, 2, -1, 1, 3.360011),
    Sketcher.Constraint("DistanceY", -1, 1, 56, 2, 3.092192),
    Sketcher.Constraint("DistanceY", -1, 1, 57, 2, 2.03604),
    Sketcher.Constraint("DistanceX", 59, 2, -1, 1, 6.50486),
    Sketcher.Constraint("DistanceY", -1, 1, 59, 2, 3.468259),
    Sketcher.Constraint("DistanceY", -1, 1, 64, 2, 5.996242),
    Sketcher.Constraint("DistanceX", 67, 2, -1, 1, 2.753658),
    Sketcher.Constraint("DistanceX", 68, 2, -1, 1, 4.261968),
    Sketcher.Constraint("DistanceY", -1, 1, 68, 2, 4.821291),
    Sketcher.Constraint("DistanceY", -1, 1, 69, 2, 4.017139),
    Sketcher.Constraint("DistanceX", 71, 2, -1, 1, 4.942962),
    Sketcher.Constraint("Distance", 1, 1.152396),
    Sketcher.Constraint("Distance", 3, 1.152396),
    Sketcher.Constraint("Distance", 9, 1.152395),
    Sketcher.Constraint("Distance", 11, 1.152396),
    Sketcher.Constraint("Distance", 17, 1.152396),
    Sketcher.Constraint("Distance", 19, 1.152396),
    Sketcher.Constraint("Distance", 25, 1.152396),
    Sketcher.Constraint("Distance", 27, 1.152396),
    Sketcher.Constraint("Distance", 33, 1.152396),
    Sketcher.Constraint("Distance", 35, 1.152396),
    Sketcher.Constraint("Distance", 41, 1.152396),
    Sketcher.Constraint("Distance", 43, 1.152396),
    Sketcher.Constraint("Distance", 49, 1.152395),
    Sketcher.Constraint("Distance", 51, 1.152396),
    Sketcher.Constraint("Distance", 57, 1.152396),
    Sketcher.Constraint("Distance", 65, 1.152396),
    Sketcher.Constraint("Distance", 67, 1.152396),
    Sketcher.Constraint("DistanceX", 6, 2, -1, 1, 1.373994),
    Sketcher.Constraint("DistanceY", 16, 2, -1, 1, 0.975566),
    Sketcher.Constraint("DistanceX", -1, 1, 20, 2, 6.306345),
    Sketcher.Constraint("DistanceY", -1, 1, 20, 2, 1.280327),
    Sketcher.Constraint("DistanceX", -1, 1, 24, 2, 4.245437),
    Sketcher.Constraint("DistanceY", 24, 2, -1, 1, 4.835855),
    Sketcher.Constraint("DistanceX", -1, 1, 37, 2, 3.349994),
    Sketcher.Constraint("DistanceX", 40, 2, -1, 1, 4.025175),
    Sketcher.Constraint("DistanceY", 40, 2, -1, 1, 5.020676),
    Sketcher.Constraint("DistanceX", 48, 2, -1, 1, 6.310692),
    Sketcher.Constraint("DistanceX", 50, 2, -1, 1, 6.886662),
    Sketcher.Constraint("DistanceX", 52, 2, -1, 1, 5.488128),
    Sketcher.Constraint("DistanceX", 53, 2, -1, 1, 4.829058),
    Sketcher.Constraint("DistanceX", 54, 2, -1, 1, 5.585424),
    Sketcher.Constraint("DistanceX", 60, 2, -1, 1, 6.363924),
    Sketcher.Constraint("DistanceY", -1, 1, 60, 2, 0.953783),
    Sketcher.Constraint("DistanceX", 61, 2, -1, 1, 6.433156),
    Sketcher.Constraint("DistanceX", 62, 2, -1, 1, 7.371325),
    Sketcher.Constraint("DistanceX", 64, 2, -1, 1, 2.335446),
    Sketcher.Constraint("DistanceX", 65, 2, -1, 1, 3.367505),
])
sketch3.setExpression("Constraints[72]", "Params.sketch3_length")
sketch3.setExpression("Constraints[73]", "Params.sketch3_length2")
sketch3.setExpression("Constraints[74]", "Params.sketch3_length3")
sketch3.setExpression("Constraints[75]", "Params.sketch3_length4")
sketch3.setExpression("Constraints[76]", "Params.sketch3_length5")
pad3 = body.newObject("PartDesign::Pad", "Pad002")
pad3.Profile = sketch3
pad3.setExpression("Length", "Params.pad3_length")

doc.recompute()
